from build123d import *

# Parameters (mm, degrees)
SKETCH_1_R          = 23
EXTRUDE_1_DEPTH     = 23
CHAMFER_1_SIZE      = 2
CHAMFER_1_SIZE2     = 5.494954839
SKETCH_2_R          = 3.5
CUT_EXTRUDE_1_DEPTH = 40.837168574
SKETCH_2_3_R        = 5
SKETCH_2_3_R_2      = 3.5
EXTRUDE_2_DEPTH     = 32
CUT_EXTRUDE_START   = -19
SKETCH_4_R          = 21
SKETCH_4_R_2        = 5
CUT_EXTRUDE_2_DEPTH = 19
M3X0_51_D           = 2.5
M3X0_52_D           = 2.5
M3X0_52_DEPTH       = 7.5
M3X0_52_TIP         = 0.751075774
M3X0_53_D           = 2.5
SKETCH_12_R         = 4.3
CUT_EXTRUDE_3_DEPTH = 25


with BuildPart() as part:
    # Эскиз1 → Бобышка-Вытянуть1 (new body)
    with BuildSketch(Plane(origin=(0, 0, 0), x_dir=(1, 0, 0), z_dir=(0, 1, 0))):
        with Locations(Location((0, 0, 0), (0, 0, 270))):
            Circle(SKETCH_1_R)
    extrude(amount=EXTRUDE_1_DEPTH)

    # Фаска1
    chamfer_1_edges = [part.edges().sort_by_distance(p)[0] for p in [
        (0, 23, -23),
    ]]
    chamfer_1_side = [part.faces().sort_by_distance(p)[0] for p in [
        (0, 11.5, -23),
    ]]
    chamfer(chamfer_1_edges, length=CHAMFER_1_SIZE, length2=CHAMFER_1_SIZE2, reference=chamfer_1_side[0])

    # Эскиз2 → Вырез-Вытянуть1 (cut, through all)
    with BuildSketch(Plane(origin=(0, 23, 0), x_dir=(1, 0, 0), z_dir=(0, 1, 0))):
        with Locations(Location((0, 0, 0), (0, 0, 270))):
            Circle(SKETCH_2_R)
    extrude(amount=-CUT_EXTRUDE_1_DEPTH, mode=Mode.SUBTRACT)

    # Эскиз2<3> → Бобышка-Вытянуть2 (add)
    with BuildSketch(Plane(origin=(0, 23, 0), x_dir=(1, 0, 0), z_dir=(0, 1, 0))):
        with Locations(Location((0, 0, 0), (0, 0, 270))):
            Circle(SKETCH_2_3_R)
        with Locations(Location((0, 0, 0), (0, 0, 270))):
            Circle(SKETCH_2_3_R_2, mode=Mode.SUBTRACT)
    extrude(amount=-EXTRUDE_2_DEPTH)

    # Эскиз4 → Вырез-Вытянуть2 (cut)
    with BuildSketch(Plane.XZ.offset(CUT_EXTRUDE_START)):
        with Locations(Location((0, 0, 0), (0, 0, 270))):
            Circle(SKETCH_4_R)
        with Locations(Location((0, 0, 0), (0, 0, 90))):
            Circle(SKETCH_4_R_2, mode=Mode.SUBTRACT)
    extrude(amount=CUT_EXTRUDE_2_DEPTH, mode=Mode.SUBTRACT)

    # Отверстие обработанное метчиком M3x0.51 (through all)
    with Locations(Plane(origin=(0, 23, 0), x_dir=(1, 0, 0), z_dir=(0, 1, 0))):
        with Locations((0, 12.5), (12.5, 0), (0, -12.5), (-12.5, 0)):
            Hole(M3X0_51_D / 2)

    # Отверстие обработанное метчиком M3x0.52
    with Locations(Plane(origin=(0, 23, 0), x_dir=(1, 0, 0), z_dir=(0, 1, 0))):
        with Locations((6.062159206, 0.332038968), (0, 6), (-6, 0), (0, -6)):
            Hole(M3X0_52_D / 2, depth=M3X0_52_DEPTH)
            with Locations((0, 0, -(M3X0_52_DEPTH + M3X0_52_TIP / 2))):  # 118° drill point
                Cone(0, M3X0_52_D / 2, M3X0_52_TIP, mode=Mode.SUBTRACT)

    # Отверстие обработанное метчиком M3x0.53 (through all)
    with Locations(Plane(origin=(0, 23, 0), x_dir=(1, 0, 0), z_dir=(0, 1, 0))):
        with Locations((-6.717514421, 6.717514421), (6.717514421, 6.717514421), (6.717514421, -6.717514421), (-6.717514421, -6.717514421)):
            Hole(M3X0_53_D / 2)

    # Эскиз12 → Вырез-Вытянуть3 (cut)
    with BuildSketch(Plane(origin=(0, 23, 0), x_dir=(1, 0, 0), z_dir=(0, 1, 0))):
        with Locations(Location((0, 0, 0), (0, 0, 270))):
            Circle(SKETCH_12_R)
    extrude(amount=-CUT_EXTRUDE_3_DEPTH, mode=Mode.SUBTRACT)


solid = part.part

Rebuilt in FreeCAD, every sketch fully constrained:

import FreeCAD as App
import Part
import Sketcher
from FreeCAD import Vector
Q = App.Units.Quantity


def edges_at(feature, points):
    """Names of the edges that pass closest to the given points."""
    edges = feature.Shape.Edges
    near = lambda p: min(range(len(edges)), key=lambda i: edges[i].distToShape(Part.Vertex(*p))[0])
    return sorted({f"Edge{near(p) + 1}" for p in points})

doc = App.newDocument("Part")
params = doc.addObject("Spreadsheet::Sheet", "Params")
for row, (alias, value) in enumerate([
    ("sketch1_diameter", "46 mm"),
    ("pad1_length", "23 mm"),
    ("chamfer_size", "2 mm"),
    ("chamfer_size2", "5.494955 mm"),
    ("sketch2_diameter", "7 mm"),
    ("sketch3_diameter", "10 mm"),
    ("sketch3_diameter2", "7 mm"),
    ("pad2_length", "32 mm"),
    ("sketch4_diameter", "42 mm"),
    ("sketch4_diameter2", "10 mm"),
    ("pocket2_length", "19 mm"),
    ("sketch5_diameter", "2.5 mm"),
    ("hole_diameter", "2.5 mm"),
    ("sketch6_diameter", "2.5 mm"),
    ("hole2_diameter", "2.5 mm"),
    ("hole2_depth", "7.5 mm"),
    ("sketch7_diameter", "2.5 mm"),
    ("hole3_diameter", "2.5 mm"),
    ("sketch8_diameter", "8.6 mm"),
    ("pocket3_length", "25 mm"),
], start=1):
    params.set(f"A{row}", alias)
    params.set(f"B{row}", "=" + value)
    params.setAlias(f"B{row}", alias)

body = doc.addObject("PartDesign::Body", "Body")

sketch1 = body.newObject("Sketcher::SketchObject", "Sketch")
sketch1.AttachmentSupport = (doc.getObject("XZ_Plane"), [""])
sketch1.MapMode = "FlatFace"
sketch1.addGeometry(Part.Circle(Vector(0, 0, 0), Vector(0, 0, 1), 23), False)
sketch1.addConstraint([
    Sketcher.Constraint("Coincident", 0, 3, -1, 1),
    Sketcher.Constraint("Diameter", 0, Q("46 mm")),
])
sketch1.setExpression("Constraints[1]", "Params.sketch1_diameter")
pad1 = body.newObject("PartDesign::Pad", "Pad")
pad1.Profile = sketch1
pad1.setExpression("Length", "Params.pad1_length")
pad1.Reversed = True
doc.recompute()

chamfer = body.newObject("PartDesign::Chamfer", "Chamfer")
chamfer.Base = (pad1, edges_at(pad1, [(0, 23, -23)]))
chamfer.ChamferType = "Two distances"
chamfer.setExpression("Size", "Params.chamfer_size")
chamfer.setExpression("Size2", "Params.chamfer_size2")

sketch2 = body.newObject("Sketcher::SketchObject", "Sketch001")
sketch2.AttachmentSupport = (doc.getObject("XZ_Plane"), [""])
sketch2.MapMode = "FlatFace"
sketch2.AttachmentOffset = App.Placement(Vector(0, 0, -23), App.Rotation())
sketch2.addGeometry(Part.Circle(Vector(0, 0, 0), Vector(0, 0, 1), 3.5), False)
sketch2.addConstraint([
    Sketcher.Constraint("Coincident", 0, 3, -1, 1),
    Sketcher.Constraint("Diameter", 0, Q("7 mm")),
])
sketch2.setExpression("Constraints[1]", "Params.sketch2_diameter")
pocket1 = body.newObject("PartDesign::Pocket", "Pocket")
pocket1.Profile = sketch2
pocket1.Type = "ThroughAll"
pocket1.Reversed = True

sketch3 = body.newObject("Sketcher::SketchObject", "Sketch002")
sketch3.AttachmentSupport = (doc.getObject("XZ_Plane"), [""])
sketch3.MapMode = "FlatFace"
sketch3.AttachmentOffset = App.Placement(Vector(0, 0, -23), App.Rotation())
sketch3.addGeometry([
    Part.Circle(Vector(0, 0, 0), Vector(0, 0, 1), 5),
    Part.Circle(Vector(0, 0, 0), Vector(0, 0, 1), 3.5),
], False)
sketch3.addConstraint([
    Sketcher.Constraint("Coincident", 0, 3, -1, 1),
    Sketcher.Constraint("Coincident", 1, 3, -1, 1),
    Sketcher.Constraint("Diameter", 0, Q("10 mm")),
    Sketcher.Constraint("Diameter", 1, Q("7 mm")),
])
sketch3.setExpression("Constraints[2]", "Params.sketch3_diameter")
sketch3.setExpression("Constraints[3]", "Params.sketch3_diameter2")
pad2 = body.newObject("PartDesign::Pad", "Pad001")
pad2.Profile = sketch3
pad2.setExpression("Length", "Params.pad2_length")

sketch4 = body.newObject("Sketcher::SketchObject", "Sketch003")
sketch4.AttachmentSupport = (doc.getObject("XZ_Plane"), [""])
sketch4.MapMode = "FlatFace"
sketch4.AttachmentOffset = App.Placement(Vector(0, 0, -19), App.Rotation())
sketch4.addGeometry([
    Part.Circle(Vector(0, 0, 0), Vector(0, 0, 1), 21),
    Part.Circle(Vector(0, 0, 0), Vector(0, 0, 1), 5),
], False)
sketch4.addConstraint([
    Sketcher.Constraint("Coincident", 0, 3, -1, 1),
    Sketcher.Constraint("Coincident", 1, 3, -1, 1),
    Sketcher.Constraint("Diameter", 0, Q("42 mm")),
    Sketcher.Constraint("Diameter", 1, Q("10 mm")),
])
sketch4.setExpression("Constraints[2]", "Params.sketch4_diameter")
sketch4.setExpression("Constraints[3]", "Params.sketch4_diameter2")
pocket2 = body.newObject("PartDesign::Pocket", "Pocket001")
pocket2.Profile = sketch4
pocket2.setExpression("Length", "Params.pocket2_length")
pocket2.Reversed = True

sketch5 = body.newObject("Sketcher::SketchObject", "Sketch004")
sketch5.AttachmentSupport = (doc.getObject("XZ_Plane"), [""])
sketch5.MapMode = "FlatFace"
sketch5.AttachmentOffset = App.Placement(Vector(0, 0, -23), App.Rotation())
sketch5.addGeometry([
    Part.Circle(Vector(0, -12.5, 0), Vector(0, 0, 1), 1.2),
    Part.Circle(Vector(12.5, 0, 0), Vector(0, 0, 1), 1.2),
    Part.Circle(Vector(0, 12.5, 0), Vector(0, 0, 1), 1.2),
    Part.Circle(Vector(-12.5, 0, 0), Vector(0, 0, 1), 1.2),
], False)
sketch5.addConstraint([
    Sketcher.Constraint("Equal", 0, 1),
    Sketcher.Constraint("Equal", 1, 2),
    Sketcher.Constraint("Equal", 2, 3),
    Sketcher.Constraint("Symmetric", 0, 3, 2, 3, -1, 1),
    Sketcher.Constraint("Symmetric", 1, 3, 3, 3, -1, 1),
    Sketcher.Constraint("PointOnObject", 0, 3, -2),
    Sketcher.Constraint("PointOnObject", 1, 3, -1),
    Sketcher.Constraint("Diameter", 0, Q("2.5 mm")),
    Sketcher.Constraint("DistanceY", 0, 3, 2, 3, Q("25 mm")),
    Sketcher.Constraint("DistanceX", 3, 3, 1, 3, Q("25 mm")),
])
sketch5.setExpression("Constraints[7]", "Params.sketch5_diameter")
doc.recompute()
hole = body.newObject("PartDesign::Hole", "Hole")
hole.Profile = sketch5
hole.ThreadType = "None"
hole.setExpression("Diameter", "Params.hole_diameter")
hole.DepthType = "ThroughAll"
hole.Reversed = True

sketch6 = body.newObject("Sketcher::SketchObject", "Sketch005")
sketch6.AttachmentSupport = (doc.getObject("XZ_Plane"), [""])
sketch6.MapMode = "FlatFace"
sketch6.AttachmentOffset = App.Placement(Vector(0, 0, -23), App.Rotation())
sketch6.addGeometry([
    Part.Circle(Vector(6.1, -0.3, 0), Vector(0, 0, 1), 1.2),
    Part.Circle(Vector(0, -6, 0), Vector(0, 0, 1), 1.2),
    Part.Circle(Vector(-6, 0, 0), Vector(0, 0, 1), 1.2),
    Part.Circle(Vector(0, 6, 0), Vector(0, 0, 1), 1.2),
], False)
sketch6.addConstraint([
    Sketcher.Constraint("Equal", 0, 1),
    Sketcher.Constraint("Equal", 1, 2),
    Sketcher.Constraint("Equal", 2, 3),
    Sketcher.Constraint("Symmetric", 1, 3, 3, 3, -1, 1),
    Sketcher.Constraint("PointOnObject", 1, 3, -2),
    Sketcher.Constraint("PointOnObject", 2, 3, -1),
    Sketcher.Constraint("Diameter", 0, Q("2.5 mm")),
    Sketcher.Constraint("DistanceY", 1, 3, -1, 1, Q("6 mm")),
    Sketcher.Constraint("DistanceX", 2, 3, -1, 1, Q("6 mm")),
    Sketcher.Constraint("DistanceX", -1, 1, 0, 3, Q("6.062159 mm")),
    Sketcher.Constraint("DistanceY", 0, 3, -1, 1, Q("0.332039 mm")),
])
sketch6.setExpression("Constraints[6]", "Params.sketch6_diameter")
doc.recompute()
hole2 = body.newObject("PartDesign::Hole", "Hole001")
hole2.Profile = sketch6
hole2.ThreadType = "None"
hole2.setExpression("Diameter", "Params.hole2_diameter")
hole2.DepthType = "Dimension"
hole2.setExpression("Depth", "Params.hole2_depth")
hole2.DrillPoint = "Angled"
hole2.DrillPointAngle = 118
hole2.Reversed = True

sketch7 = body.newObject("Sketcher::SketchObject", "Sketch006")
sketch7.AttachmentSupport = (doc.getObject("XZ_Plane"), [""])
sketch7.MapMode = "FlatFace"
sketch7.AttachmentOffset = App.Placement(Vector(0, 0, -23), App.Rotation())
sketch7.addGeometry([
    Part.Circle(Vector(-6.7, -6.7, 0), Vector(0, 0, 1), 1.2),
    Part.Circle(Vector(6.7, -6.7, 0), Vector(0, 0, 1), 1.2),
    Part.Circle(Vector(6.7, 6.7, 0), Vector(0, 0, 1), 1.2),
    Part.Circle(Vector(-6.7, 6.7, 0), Vector(0, 0, 1), 1.2),
], False)
sketch7.addConstraint([
    Sketcher.Constraint("Equal", 0, 1),
    Sketcher.Constraint("Equal", 1, 2),
    Sketcher.Constraint("Equal", 2, 3),
    Sketcher.Constraint("Symmetric", 0, 3, 2, 3, -1, 1),
    Sketcher.Constraint("Symmetric", 1, 3, 3, 3, -1, 1),
    Sketcher.Constraint("Symmetric", 0, 3, 1, 3, -2),
    Sketcher.Constraint("Diameter", 0, Q("2.5 mm")),
    Sketcher.Constraint("DistanceX", 0, 3, 1, 3, Q("13.435029 mm")),
    Sketcher.Constraint("DistanceY", 1, 3, 2, 3, Q("13.435029 mm")),
])
sketch7.setExpression("Constraints[6]", "Params.sketch7_diameter")
doc.recompute()
hole3 = body.newObject("PartDesign::Hole", "Hole002")
hole3.Profile = sketch7
hole3.ThreadType = "None"
hole3.setExpression("Diameter", "Params.hole3_diameter")
hole3.DepthType = "ThroughAll"
hole3.Reversed = True

sketch8 = body.newObject("Sketcher::SketchObject", "Sketch007")
sketch8.AttachmentSupport = (doc.getObject("XZ_Plane"), [""])
sketch8.MapMode = "FlatFace"
sketch8.AttachmentOffset = App.Placement(Vector(0, 0, -23), App.Rotation())
sketch8.addGeometry(Part.Circle(Vector(0, 0, 0), Vector(0, 0, 1), 4.3), False)
sketch8.addConstraint([
    Sketcher.Constraint("Coincident", 0, 3, -1, 1),
    Sketcher.Constraint("Diameter", 0, Q("8.6 mm")),
])
sketch8.setExpression("Constraints[1]", "Params.sketch8_diameter")
pocket3 = body.newObject("PartDesign::Pocket", "Pocket002")
pocket3.Profile = sketch8
pocket3.setExpression("Length", "Params.pocket3_length")
pocket3.Reversed = True

doc.recompute()
